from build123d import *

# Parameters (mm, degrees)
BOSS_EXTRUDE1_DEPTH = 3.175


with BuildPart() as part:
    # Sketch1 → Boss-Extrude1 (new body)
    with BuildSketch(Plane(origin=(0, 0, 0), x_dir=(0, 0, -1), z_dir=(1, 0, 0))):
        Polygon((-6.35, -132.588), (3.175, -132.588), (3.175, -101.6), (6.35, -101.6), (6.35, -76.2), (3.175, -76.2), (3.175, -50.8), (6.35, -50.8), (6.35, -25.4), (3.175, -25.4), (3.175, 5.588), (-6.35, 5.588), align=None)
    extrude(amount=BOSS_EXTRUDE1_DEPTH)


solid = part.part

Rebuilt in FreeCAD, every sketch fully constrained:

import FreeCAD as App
import Part
import Sketcher
Q = App.Units.Quantity

doc = App.newDocument("Part")
body = doc.addObject("PartDesign::Body", "Body")

sketch1 = body.newObject("Sketcher::SketchObject", "Sketch")
sketch1.AttachmentSupport = (doc.getObject("YZ_Plane"), [""])
sketch1.MapMode = "FlatFace"
sketch1.addGeometry(Part.LineSegment(App.Vector(-132.6, 6.3, 0), App.Vector(-132.6, -3.2, 0)), False)
sketch1.addGeometry(Part.LineSegment(App.Vector(-132.6, -3.2, 0), App.Vector(-101.6, -3.2, 0)), False)
sketch1.addGeometry(Part.LineSegment(App.Vector(-101.6, -3.2, 0), App.Vector(-101.6, -6.3, 0)), False)
sketch1.addGeometry(Part.LineSegment(App.Vector(-101.6, -6.3, 0), App.Vector(-76.2, -6.3, 0)), False)
sketch1.addGeometry(Part.LineSegment(App.Vector(-76.2, -6.3, 0), App.Vector(-76.2, -3.2, 0)), False)
sketch1.addGeometry(Part.LineSegment(App.Vector(-76.2, -3.2, 0), App.Vector(-50.8, -3.2, 0)), False)
sketch1.addGeometry(Part.LineSegment(App.Vector(-50.8, -3.2, 0), App.Vector(-50.8, -6.3, 0)), False)
sketch1.addGeometry(Part.LineSegment(App.Vector(-50.8, -6.3, 0), App.Vector(-25.4, -6.3, 0)), False)
sketch1.addGeometry(Part.LineSegment(App.Vector(-25.4, -6.3, 0), App.Vector(-25.4, -3.2, 0)), False)
sketch1.addGeometry(Part.LineSegment(App.Vector(-25.4, -3.2, 0), App.Vector(5.6, -3.2, 0)), False)
sketch1.addGeometry(Part.LineSegment(App.Vector(5.6, -3.2, 0), App.Vector(5.6, 6.3, 0)), False)
sketch1.addGeometry(Part.LineSegment(App.Vector(5.6, 6.3, 0), App.Vector(-132.6, 6.3, 0)), False)
sketch1.addConstraint(Sketcher.Constraint("Coincident", 0, 2, 1, 1))
sketch1.addConstraint(Sketcher.Constraint("Coincident", 1, 2, 2, 1))
sketch1.addConstraint(Sketcher.Constraint("Coincident", 2, 2, 3, 1))
sketch1.addConstraint(Sketcher.Constraint("Coincident", 3, 2, 4, 1))
sketch1.addConstraint(Sketcher.Constraint("Coincident", 4, 2, 5, 1))
sketch1.addConstraint(Sketcher.Constraint("Coincident", 5, 2, 6, 1))
sketch1.addConstraint(Sketcher.Constraint("Coincident", 6, 2, 7, 1))
sketch1.addConstraint(Sketcher.Constraint("Coincident", 7, 2, 8, 1))
sketch1.addConstraint(Sketcher.Constraint("Coincident", 8, 2, 9, 1))
sketch1.addConstraint(Sketcher.Constraint("Coincident", 9, 2, 10, 1))
sketch1.addConstraint(Sketcher.Constraint("Coincident", 10, 2, 11, 1))
sketch1.addConstraint(Sketcher.Constraint("Coincident", 11, 2, 0, 1))
sketch1.addConstraint(Sketcher.Constraint("Vertical", 0))
sketch1.addConstraint(Sketcher.Constraint("Horizontal", 1))
sketch1.addConstraint(Sketcher.Constraint("Vertical", 2))
sketch1.addConstraint(Sketcher.Constraint("Horizontal", 3))
sketch1.addConstraint(Sketcher.Constraint("Vertical", 4))
sketch1.addConstraint(Sketcher.Constraint("Horizontal", 5))
sketch1.addConstraint(Sketcher.Constraint("Vertical", 6))
sketch1.addConstraint(Sketcher.Constraint("Horizontal", 7))
sketch1.addConstraint(Sketcher.Constraint("Vertical", 8))
sketch1.addConstraint(Sketcher.Constraint("Horizontal", 9))
sketch1.addConstraint(Sketcher.Constraint("Vertical", 10))
sketch1.addConstraint(Sketcher.Constraint("Horizontal", 11))
sketch1.addConstraint(Sketcher.Constraint("Horizontal", 1, 2, 4, 2))
sketch1.addConstraint(Sketcher.Constraint("Horizontal", 3, 2, 6, 2))
sketch1.addConstraint(Sketcher.Constraint("Horizontal", 5, 2, 8, 2))
sketch1.addConstraint(Sketcher.Constraint("Equal", 3, 5))
sketch1.addConstraint(Sketcher.Constraint("Equal", 5, 7))
sketch1.addConstraint(Sketcher.Constraint("Equal", 1, 9))
sketch1.addConstraint(Sketcher.Constraint("DistanceX", 3, 1, 3, 2, Q("1 in")))
sketch1.addConstraint(Sketcher.Constraint("DistanceX", 1, 2, -1, 1, Q("4 in")))
sketch1.addConstraint(Sketcher.Constraint("DistanceX", 1, 1, 1, 2, Q("1.22 in")))
sketch1.addConstraint(Sketcher.Constraint("DistanceY", 7, 2, 10, 2, Q("0.5 in")))
sketch1.addConstraint(Sketcher.Constraint("DistanceY", 0, 2, 0, 1, Q("0.375 in")))
sketch1.addConstraint(Sketcher.Constraint("DistanceY", 2, 2, -1, 1, Q("0.25 in")))
pad1 = body.newObject("PartDesign::Pad", "Pad")
pad1.Profile = sketch1
pad1.Length = Q("0.125 in")

doc.recompute()
